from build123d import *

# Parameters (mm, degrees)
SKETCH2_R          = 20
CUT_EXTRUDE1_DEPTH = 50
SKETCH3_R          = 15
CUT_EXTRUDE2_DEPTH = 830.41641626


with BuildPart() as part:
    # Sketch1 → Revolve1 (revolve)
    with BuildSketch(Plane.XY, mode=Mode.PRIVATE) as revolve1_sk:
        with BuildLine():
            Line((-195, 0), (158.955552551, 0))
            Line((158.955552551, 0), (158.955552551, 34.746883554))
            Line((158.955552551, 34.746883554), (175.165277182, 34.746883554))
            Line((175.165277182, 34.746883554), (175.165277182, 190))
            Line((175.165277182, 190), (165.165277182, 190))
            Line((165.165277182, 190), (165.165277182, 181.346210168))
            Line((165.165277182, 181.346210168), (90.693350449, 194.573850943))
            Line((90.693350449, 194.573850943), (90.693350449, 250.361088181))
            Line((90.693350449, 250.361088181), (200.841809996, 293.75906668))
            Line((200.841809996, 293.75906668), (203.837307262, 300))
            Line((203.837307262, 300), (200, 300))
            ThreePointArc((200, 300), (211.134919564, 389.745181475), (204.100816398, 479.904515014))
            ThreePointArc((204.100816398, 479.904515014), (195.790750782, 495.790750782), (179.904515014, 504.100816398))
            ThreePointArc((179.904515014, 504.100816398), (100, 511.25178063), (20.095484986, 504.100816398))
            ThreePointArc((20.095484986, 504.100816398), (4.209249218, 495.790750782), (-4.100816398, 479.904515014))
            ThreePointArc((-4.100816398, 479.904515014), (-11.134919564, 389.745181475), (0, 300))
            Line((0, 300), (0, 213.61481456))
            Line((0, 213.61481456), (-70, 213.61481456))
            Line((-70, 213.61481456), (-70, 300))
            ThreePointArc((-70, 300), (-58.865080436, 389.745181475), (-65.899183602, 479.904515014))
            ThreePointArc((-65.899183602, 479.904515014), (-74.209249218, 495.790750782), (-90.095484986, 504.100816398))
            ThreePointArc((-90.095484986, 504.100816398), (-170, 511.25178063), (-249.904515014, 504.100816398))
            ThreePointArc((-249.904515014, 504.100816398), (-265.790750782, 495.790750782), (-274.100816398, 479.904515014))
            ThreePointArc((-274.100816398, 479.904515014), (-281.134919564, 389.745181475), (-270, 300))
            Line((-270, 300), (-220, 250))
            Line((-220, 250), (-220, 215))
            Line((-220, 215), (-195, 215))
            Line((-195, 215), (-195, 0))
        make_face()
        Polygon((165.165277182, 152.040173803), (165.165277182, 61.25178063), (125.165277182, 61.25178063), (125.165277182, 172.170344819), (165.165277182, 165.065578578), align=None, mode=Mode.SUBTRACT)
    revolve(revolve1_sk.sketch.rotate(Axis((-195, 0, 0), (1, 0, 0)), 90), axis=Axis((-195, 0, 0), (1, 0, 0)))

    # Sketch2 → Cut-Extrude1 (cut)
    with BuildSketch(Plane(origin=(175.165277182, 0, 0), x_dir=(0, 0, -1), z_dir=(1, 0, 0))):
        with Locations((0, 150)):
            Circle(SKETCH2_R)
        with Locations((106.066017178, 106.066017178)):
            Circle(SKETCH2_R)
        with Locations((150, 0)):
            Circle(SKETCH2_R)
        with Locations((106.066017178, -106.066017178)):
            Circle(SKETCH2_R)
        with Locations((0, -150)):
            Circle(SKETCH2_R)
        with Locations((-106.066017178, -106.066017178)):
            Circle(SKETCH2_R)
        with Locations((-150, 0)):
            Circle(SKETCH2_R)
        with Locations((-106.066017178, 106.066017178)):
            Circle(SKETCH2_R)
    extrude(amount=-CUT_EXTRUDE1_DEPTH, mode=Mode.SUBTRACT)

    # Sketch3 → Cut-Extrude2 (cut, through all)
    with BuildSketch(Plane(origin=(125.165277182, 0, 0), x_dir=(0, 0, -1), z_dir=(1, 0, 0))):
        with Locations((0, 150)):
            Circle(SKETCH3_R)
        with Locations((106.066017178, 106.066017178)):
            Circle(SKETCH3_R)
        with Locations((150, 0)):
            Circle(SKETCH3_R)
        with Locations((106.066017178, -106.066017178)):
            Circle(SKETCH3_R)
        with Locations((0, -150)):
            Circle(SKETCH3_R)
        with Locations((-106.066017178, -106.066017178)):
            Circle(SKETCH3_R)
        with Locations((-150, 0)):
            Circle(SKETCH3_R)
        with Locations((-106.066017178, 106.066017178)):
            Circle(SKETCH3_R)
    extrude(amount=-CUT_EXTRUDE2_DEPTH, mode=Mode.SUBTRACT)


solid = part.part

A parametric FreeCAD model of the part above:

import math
import FreeCAD as App
import Part
import Sketcher
from FreeCAD import Vector
Q = App.Units.Quantity


def add_polygon(sketch, points):
    """Adds a closed chain of lines whose ends are joined by coincident constraints."""
    first, n = sketch.GeometryCount, len(points)
    for a, b in zip(points, points[1:] + points[:1]):
        sketch.addGeometry(Part.LineSegment(App.Vector(*a, 0), App.Vector(*b, 0)), False)
    for i in range(n):
        sketch.addConstraint(Sketcher.Constraint("Coincident", first + i, 2, first + (i + 1) % n, 1))

doc = App.newDocument("Part")
body = doc.addObject("PartDesign::Body", "Body")

sketch1 = body.newObject("Sketcher::SketchObject", "Sketch")
sketch1.AttachmentSupport = (doc.getObject("XY_Plane"), [""])
sketch1.MapMode = "FlatFace"
sketch1.addGeometry(Part.LineSegment(Vector(-195, 0, 0), Vector(159, 0, 0)), False)
sketch1.addGeometry(Part.LineSegment(Vector(159, 0, 0), Vector(159, 34.7, 0)), False)
sketch1.addGeometry(Part.LineSegment(Vector(159, 34.7, 0), Vector(175.2, 34.7, 0)), False)
sketch1.addGeometry(Part.LineSegment(Vector(175.2, 34.7, 0), Vector(175.2, 190, 0)), False)
sketch1.addGeometry(Part.LineSegment(Vector(175.2, 190, 0), Vector(165.2, 190, 0)), False)
sketch1.addGeometry(Part.LineSegment(Vector(165.2, 190, 0), Vector(165.2, 181.3, 0)), False)
sketch1.addGeometry(Part.LineSegment(Vector(165.2, 181.3, 0), Vector(90.7, 194.6, 0)), False)
sketch1.addGeometry(Part.LineSegment(Vector(90.7, 194.6, 0), Vector(90.7, 250.4, 0)), False)
sketch1.addGeometry(Part.LineSegment(Vector(90.7, 250.4, 0), Vector(200.8, 293.8, 0)), False)
sketch1.addGeometry(Part.LineSegment(Vector(200.8, 293.8, 0), Vector(203.8, 300, 0)), False)
sketch1.addGeometry(Part.LineSegment(Vector(203.8, 300, 0), Vector(200, 300, 0)), False)
sketch1.addGeometry(Part.ArcOfCircle(Part.Circle(Vector(-238.7, 400, 0), Vector(0, 0, 1), 450), math.radians(-13), math.radians(10)), False)
sketch1.addGeometry(Part.ArcOfCircle(Part.Circle(Vector(174.6, 474.6, 0), Vector(0, 0, 1), 30), math.radians(10), math.radians(80)), False)
sketch1.addGeometry(Part.ArcOfCircle(Part.Circle(Vector(100, 61.3, 0), Vector(0, 0, 1), 450), math.radians(80), math.radians(100)), False)
sketch1.addGeometry(Part.ArcOfCircle(Part.Circle(Vector(25.4, 474.6, 0), Vector(0, 0, 1), 30), math.radians(100), math.radians(170)), False)
sketch1.addGeometry(Part.ArcOfCircle(Part.Circle(Vector(438.7, 400, 0), Vector(0, 0, 1), 450), math.radians(170), math.radians(193)), False)
sketch1.addGeometry(Part.LineSegment(Vector(0, 300, 0), Vector(0, 213.6, 0)), False)
sketch1.addGeometry(Part.LineSegment(Vector(0, 213.6, 0), Vector(-70, 213.6, 0)), False)
sketch1.addGeometry(Part.LineSegment(Vector(-70, 213.6, 0), Vector(-70, 300, 0)), False)
sketch1.addGeometry(Part.ArcOfCircle(Part.Circle(Vector(-508.7, 400, 0), Vector(0, 0, 1), 450), math.radians(-13), math.radians(10)), False)
sketch1.addGeometry(Part.ArcOfCircle(Part.Circle(Vector(-95.4, 474.6, 0), Vector(0, 0, 1), 30), math.radians(10), math.radians(80)), False)
sketch1.addGeometry(Part.ArcOfCircle(Part.Circle(Vector(-170, 61.3, 0), Vector(0, 0, 1), 450), math.radians(80), math.radians(100)), False)
sketch1.addGeometry(Part.ArcOfCircle(Part.Circle(Vector(-244.6, 474.6, 0), Vector(0, 0, 1), 30), math.radians(100), math.radians(170)), False)
sketch1.addGeometry(Part.ArcOfCircle(Part.Circle(Vector(168.7, 400, 0), Vector(0, 0, 1), 450), math.radians(170), math.radians(193)), False)
sketch1.addGeometry(Part.LineSegment(Vector(-270, 300, 0), Vector(-220, 250, 0)), False)
sketch1.addGeometry(Part.LineSegment(Vector(-220, 250, 0), Vector(-220, 215, 0)), False)
sketch1.addGeometry(Part.LineSegment(Vector(-220, 215, 0), Vector(-195, 215, 0)), False)
sketch1.addGeometry(Part.LineSegment(Vector(-195, 215, 0), Vector(-195, 0, 0)), False)
add_polygon(sketch1, [(165.2, 165.1), (165.2, 61.3), (125.2, 61.3), (125.2, 172.2)])
sketch1.addConstraint([
    Sketcher.Constraint("Coincident", 0, 2, 1, 1),
    Sketcher.Constraint("Coincident", 1, 2, 2, 1),
    Sketcher.Constraint("Coincident", 2, 2, 3, 1),
    Sketcher.Constraint("Coincident", 3, 2, 4, 1),
    Sketcher.Constraint("Coincident", 4, 2, 5, 1),
    Sketcher.Constraint("Coincident", 5, 2, 6, 1),
    Sketcher.Constraint("Coincident", 6, 2, 7, 1),
    Sketcher.Constraint("Coincident", 7, 2, 8, 1),
    Sketcher.Constraint("Coincident", 8, 2, 9, 1),
    Sketcher.Constraint("Coincident", 9, 2, 10, 1),
    Sketcher.Constraint("Coincident", 10, 2, 11, 1),
    Sketcher.Constraint("Tangent", 11, 2, 12, 1),
    Sketcher.Constraint("Tangent", 12, 2, 13, 1),
    Sketcher.Constraint("Tangent", 13, 2, 14, 1),
    Sketcher.Constraint("Tangent", 14, 2, 15, 1),
    Sketcher.Constraint("Coincident", 15, 2, 16, 1),
    Sketcher.Constraint("Coincident", 16, 2, 17, 1),
    Sketcher.Constraint("Coincident", 17, 2, 18, 1),
    Sketcher.Constraint("Coincident", 18, 2, 19, 1),
    Sketcher.Constraint("Tangent", 19, 2, 20, 1),
    Sketcher.Constraint("Tangent", 20, 2, 21, 1),
    Sketcher.Constraint("Tangent", 21, 2, 22, 1),
    Sketcher.Constraint("Tangent", 22, 2, 23, 1),
    Sketcher.Constraint("Coincident", 23, 2, 24, 1),
    Sketcher.Constraint("Coincident", 24, 2, 25, 1),
    Sketcher.Constraint("Coincident", 25, 2, 26, 1),
    Sketcher.Constraint("Coincident", 26, 2, 27, 1),
    Sketcher.Constraint("Coincident", 27, 2, 0, 1),
    Sketcher.Constraint("Horizontal", 0),
    Sketcher.Constraint("Vertical", 1),
    Sketcher.Constraint("Horizontal", 2),
    Sketcher.Constraint("Vertical", 3),
    Sketcher.Constraint("Horizontal", 4),
    Sketcher.Constraint("Vertical", 5),
    Sketcher.Constraint("Vertical", 7),
    Sketcher.Constraint("Horizontal", 10),
    Sketcher.Constraint("Vertical", 16),
    Sketcher.Constraint("Horizontal", 17),
    Sketcher.Constraint("Vertical", 18),
    Sketcher.Constraint("Vertical", 25),
    Sketcher.Constraint("Horizontal", 26),
    Sketcher.Constraint("Vertical", 27),
    Sketcher.Constraint("Vertical", 28),
    Sketcher.Constraint("Horizontal", 29),
    Sketcher.Constraint("Vertical", 30),
    Sketcher.Constraint("Equal", 11, 13),
    Sketcher.Constraint("Equal", 12, 14),
    Sketcher.Constraint("Equal", 13, 15),
    Sketcher.Constraint("Equal", 15, 19),
    Sketcher.Constraint("Equal", 14, 20),
    Sketcher.Constraint("Equal", 19, 21),
    Sketcher.Constraint("Equal", 20, 22),
    Sketcher.Constraint("Equal", 21, 23),
    Sketcher.Constraint("PointOnObject", 0, 2, -1),
    Sketcher.Constraint("PointOnObject", 15, 2, -2),
    Sketcher.Constraint("Parallel", 6, 31),
    Sketcher.Constraint("Horizontal", 12, 3, 14, 3),
    Sketcher.Constraint("Horizontal", 11, 3, 15, 3),
    Sketcher.Constraint("Horizontal", 15, 3, 19, 3),
    Sketcher.Constraint("Horizontal", 14, 3, 20, 3),
    Sketcher.Constraint("Horizontal", 13, 3, 21, 3),
    Sketcher.Constraint("Horizontal", 20, 3, 22, 3),
    Sketcher.Constraint("Horizontal", 19, 3, 23, 3),
    Sketcher.Constraint("Horizontal", 10, 2, 15, 2),
    Sketcher.Constraint("Horizontal", 15, 2, 18, 2),
    Sketcher.Constraint("Horizontal", 18, 2, 23, 2),
    Sketcher.Constraint("Horizontal", 21, 3, 28, 2),
    Sketcher.Constraint("Vertical", 5, 2, 28, 2),
    Sketcher.Constraint("Radius", 11, 450.0),
    Sketcher.Constraint("Radius", 12, 30.0),
    Sketcher.Constraint("DistanceX", 4, 2, 4, 1, 10.0),
    Sketcher.Constraint("DistanceX", 17, 2, 17, 1, 70.0),
    Sketcher.Constraint("DistanceX", 26, 1, 26, 2, 25.0),
    Sketcher.Constraint("DistanceX", 29, 2, 29, 1, 40.0),
    Sketcher.Constraint("DistanceY", 25, 2, 25, 1, 35.0),
    Sketcher.Constraint("DistanceY", 27, 2, 27, 1, 215.0),
    Sketcher.Constraint("Angle", 24, Q("-45 deg")),
    Sketcher.Constraint("DistanceY", -1, 1, 11, 3, 400.0),
    Sketcher.Constraint("DistanceX", -1, 1, 13, 3, 100.0),
    Sketcher.Constraint("DistanceY", -1, 1, 3, 2, 190.0),
    Sketcher.Constraint("DistanceY", -1, 1, 9, 2, 300.0),
    Sketcher.Constraint("DistanceY", 5, 2, 5, 1, 8.65379),
    Sketcher.Constraint("Distance", 9, 6.92259),
    Sketcher.Constraint("Distance", 31, 40.626072),
    Sketcher.Constraint("DistanceX", 0, 1, 0, 2, 353.955553),
    Sketcher.Constraint("DistanceX", 2, 1, 2, 2, 16.209725),
    Sketcher.Constraint("DistanceX", 10, 2, 10, 1, 3.837307),
    Sketcher.Constraint("DistanceY", 1, 1, 1, 2, 34.746884),
    Sketcher.Constraint("DistanceY", 7, 1, 7, 2, 55.787237),
    Sketcher.Constraint("DistanceY", 16, 2, 16, 1, 86.385185),
    Sketcher.Constraint("DistanceY", 28, 2, 28, 1, 103.813798),
    Sketcher.Constraint("DistanceY", -1, 1, 13, 3, 61.251781),
    Sketcher.Constraint("DistanceX", -1, 1, 6, 2, 90.69335),
    Sketcher.Constraint("DistanceX", -1, 1, 8, 2, 200.84181),
])
revolution = body.newObject("PartDesign::Revolution", "Revolution")
revolution.Profile = sketch1
revolution.ReferenceAxis = (sketch1, ["H_Axis"])
revolution.Angle = 360

sketch2 = body.newObject("Sketcher::SketchObject", "Sketch001")
sketch2.AttachmentSupport = (doc.getObject("YZ_Plane"), [""])
sketch2.MapMode = "FlatFace"
sketch2.AttachmentOffset = App.Placement(Vector(0, 0, 175.165277), App.Rotation())
sketch2.addGeometry([
    Part.Circle(Vector(150, 0, 0), Vector(0, 0, 1), 20),
    Part.Circle(Vector(106, -106, 0), Vector(0, 0, 1), 20),
    Part.Circle(Vector(0, -150, 0), Vector(0, 0, 1), 20),
    Part.Circle(Vector(-106, -106, 0), Vector(0, 0, 1), 20),
    Part.Circle(Vector(-150, 0, 0), Vector(0, 0, 1), 20),
    Part.Circle(Vector(-106, 106, 0), Vector(0, 0, 1), 20),
    Part.Circle(Vector(0, 150, 0), Vector(0, 0, 1), 20),
    Part.Circle(Vector(106, 106, 0), Vector(0, 0, 1), 20),
], False)
sketch2.addConstraint([
    Sketcher.Constraint("Equal", 0, 1),
    Sketcher.Constraint("Equal", 1, 2),
    Sketcher.Constraint("Equal", 2, 3),
    Sketcher.Constraint("Equal", 3, 4),
    Sketcher.Constraint("Equal", 4, 5),
    Sketcher.Constraint("Equal", 5, 6),
    Sketcher.Constraint("Equal", 6, 7),
    Sketcher.Constraint("Symmetric", 0, 3, 4, 3, -1, 1),
    Sketcher.Constraint("Symmetric", 1, 3, 5, 3, -1, 1),
    Sketcher.Constraint("Symmetric", 2, 3, 6, 3, -1, 1),
    Sketcher.Constraint("Symmetric", 3, 3, 7, 3, -1, 1),
    Sketcher.Constraint("Symmetric", 1, 3, 3, 3, -2),
    Sketcher.Constraint("PointOnObject", 0, 3, -1),
    Sketcher.Constraint("PointOnObject", 2, 3, -2),
    Sketcher.Constraint("Diameter", 0, 40.0),
    Sketcher.Constraint("DistanceX", -1, 1, 0, 3, 150.0),
    Sketcher.Constraint("DistanceY", 2, 3, -1, 1, 150.0),
    Sketcher.Constraint("DistanceX", -1, 1, 1, 3, 106.066017),
    Sketcher.Constraint("DistanceY", 1, 3, -1, 1, 106.066017),
])
pocket1 = body.newObject("PartDesign::Pocket", "Pocket")
pocket1.Profile = sketch2
pocket1.Length = 50

sketch3 = body.newObject("Sketcher::SketchObject", "Sketch002")
sketch3.AttachmentSupport = (doc.getObject("YZ_Plane"), [""])
sketch3.MapMode = "FlatFace"
sketch3.AttachmentOffset = App.Placement(Vector(0, 0, 125.165277), App.Rotation())
sketch3.addGeometry([
    Part.Circle(Vector(150, 0, 0), Vector(0, 0, 1), 15),
    Part.Circle(Vector(106, -106, 0), Vector(0, 0, 1), 15),
    Part.Circle(Vector(0, -150, 0), Vector(0, 0, 1), 15),
    Part.Circle(Vector(-106, -106, 0), Vector(0, 0, 1), 15),
    Part.Circle(Vector(-150, 0, 0), Vector(0, 0, 1), 15),
    Part.Circle(Vector(-106, 106, 0), Vector(0, 0, 1), 15),
    Part.Circle(Vector(0, 150, 0), Vector(0, 0, 1), 15),
    Part.Circle(Vector(106, 106, 0), Vector(0, 0, 1), 15),
], False)
sketch3.addConstraint([
    Sketcher.Constraint("Equal", 0, 1),
    Sketcher.Constraint("Equal", 1, 2),
    Sketcher.Constraint("Equal", 2, 3),
    Sketcher.Constraint("Equal", 3, 4),
    Sketcher.Constraint("Equal", 4, 5),
    Sketcher.Constraint("Equal", 5, 6),
    Sketcher.Constraint("Equal", 6, 7),
    Sketcher.Constraint("Symmetric", 0, 3, 4, 3, -1, 1),
    Sketcher.Constraint("Symmetric", 1, 3, 5, 3, -1, 1),
    Sketcher.Constraint("Symmetric", 2, 3, 6, 3, -1, 1),
    Sketcher.Constraint("Symmetric", 3, 3, 7, 3, -1, 1),
    Sketcher.Constraint("Symmetric", 1, 3, 3, 3, -2),
    Sketcher.Constraint("PointOnObject", 0, 3, -1),
    Sketcher.Constraint("PointOnObject", 2, 3, -2),
    Sketcher.Constraint("Diameter", 0, 30.0),
    Sketcher.Constraint("DistanceX", -1, 1, 0, 3, 150.0),
    Sketcher.Constraint("DistanceY", 2, 3, -1, 1, 150.0),
    Sketcher.Constraint("DistanceX", -1, 1, 1, 3, 106.066017),
    Sketcher.Constraint("DistanceY", 1, 3, -1, 1, 106.066017),
])
pocket2 = body.newObject("PartDesign::Pocket", "Pocket001")
pocket2.Profile = sketch3
pocket2.Type = "ThroughAll"

doc.recompute()
